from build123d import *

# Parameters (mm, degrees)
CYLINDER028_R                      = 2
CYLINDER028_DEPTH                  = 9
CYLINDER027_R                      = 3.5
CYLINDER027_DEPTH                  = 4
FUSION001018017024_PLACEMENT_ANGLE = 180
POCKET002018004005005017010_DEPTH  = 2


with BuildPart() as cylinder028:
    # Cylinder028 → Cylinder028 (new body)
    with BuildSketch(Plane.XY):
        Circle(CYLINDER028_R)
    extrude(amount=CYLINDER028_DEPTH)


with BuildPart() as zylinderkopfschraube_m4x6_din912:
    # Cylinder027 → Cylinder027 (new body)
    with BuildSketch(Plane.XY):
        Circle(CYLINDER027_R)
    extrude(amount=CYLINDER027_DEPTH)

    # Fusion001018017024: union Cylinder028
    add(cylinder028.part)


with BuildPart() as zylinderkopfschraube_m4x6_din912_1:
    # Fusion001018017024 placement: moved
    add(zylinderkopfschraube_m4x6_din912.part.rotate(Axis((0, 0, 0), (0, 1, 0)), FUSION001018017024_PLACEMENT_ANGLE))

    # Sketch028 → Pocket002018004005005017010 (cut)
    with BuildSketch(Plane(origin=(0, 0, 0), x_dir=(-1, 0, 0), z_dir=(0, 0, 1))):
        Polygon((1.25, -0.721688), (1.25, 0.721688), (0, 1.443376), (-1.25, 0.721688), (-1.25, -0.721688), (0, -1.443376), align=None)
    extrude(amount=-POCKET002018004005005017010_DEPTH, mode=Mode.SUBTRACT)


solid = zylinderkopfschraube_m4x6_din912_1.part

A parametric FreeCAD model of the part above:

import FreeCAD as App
import Part
import Sketcher
Q = App.Units.Quantity


def add_polygon(sketch, points):
    """Adds a closed chain of lines whose ends are joined by coincident constraints."""
    first, n = sketch.GeometryCount, len(points)
    for a, b in zip(points, points[1:] + points[:1]):
        sketch.addGeometry(Part.LineSegment(App.Vector(*a, 0), App.Vector(*b, 0)), False)
    for i in range(n):
        sketch.addConstraint(Sketcher.Constraint("Coincident", first + i, 2, first + (i + 1) % n, 1))

doc = App.newDocument("Part")
params = doc.addObject("Spreadsheet::Sheet", "Params")
for row, (alias, value) in enumerate([
    ("sketch1_diameter", "4 mm"),
    ("pad1_length", "9 mm"),
    ("sketch2_diameter", "7 mm"),
    ("pad2_length", "4 mm"),
    ("pocket1_length", "2 mm"),
], start=1):
    params.set(f"A{row}", alias)
    params.set(f"B{row}", "=" + value)
    params.setAlias(f"B{row}", alias)

body = doc.addObject("PartDesign::Body", "Body")

sketch1 = body.newObject("Sketcher::SketchObject", "Sketch")
sketch1.AttachmentSupport = (doc.getObject("XY_Plane"), [""])
sketch1.MapMode = "FlatFace"
sketch1.addGeometry(Part.Circle(App.Vector(0, 0, 0), App.Vector(0, 0, 1), 2), False)
sketch1.addConstraint([
    Sketcher.Constraint("Coincident", 0, 3, -1, 1),
    Sketcher.Constraint("Diameter", 0, 4.0),
])
sketch1.setExpression("Constraints[1]", "Params.sketch1_diameter")
pad1 = body.newObject("PartDesign::Pad", "Pad")
pad1.Profile = sketch1
pad1.setExpression("Length", "Params.pad1_length")
body2 = doc.addObject("PartDesign::Body", "Body001")

sketch2 = body2.newObject("Sketcher::SketchObject", "Sketch001")
sketch2.AttachmentSupport = (doc.getObject("XY_Plane001"), [""])
sketch2.MapMode = "FlatFace"
sketch2.addGeometry(Part.Circle(App.Vector(0, 0, 0), App.Vector(0, 0, 1), 3.5), False)
sketch2.addConstraint([
    Sketcher.Constraint("Coincident", 0, 3, -1, 1),
    Sketcher.Constraint("Diameter", 0, 7.0),
])
sketch2.setExpression("Constraints[1]", "Params.sketch2_diameter")
pad2 = body2.newObject("PartDesign::Pad", "Pad001")
pad2.Profile = sketch2
pad2.setExpression("Length", "Params.pad2_length")
doc.recompute()

boolean = body2.newObject("PartDesign::Boolean", "Boolean")
boolean.Type = "Fuse"
boolean.addObjects([body])
body3 = doc.addObject("PartDesign::Body", "Body002")
doc.recompute()

body2.Placement = App.Placement(App.Vector(0, 0, 0), App.Rotation(App.Vector(0, 1, 0), 180))
boolean2 = body3.newObject("PartDesign::Boolean", "Boolean001")
boolean2.Type = "Fuse"
boolean2.addObjects([body2])

sketch3 = body3.newObject("Sketcher::SketchObject", "Sketch002")
sketch3.AttachmentSupport = (doc.getObject("XY_Plane002"), [""])
sketch3.MapMode = "FlatFace"
add_polygon(sketch3, [(-1.2, 0.7), (-1.2, -0.7), (0, -1.4), (1.2, -0.7), (1.2, 0.7), (0, 1.4)])
sketch3.addConstraint([
    Sketcher.Constraint("Vertical", 0),
    Sketcher.Constraint("Vertical", 3),
    Sketcher.Constraint("Symmetric", 0, 2, 3, 2, -1, 1),
    Sketcher.Constraint("Symmetric", 1, 2, 4, 2, -1, 1),
    Sketcher.Constraint("PointOnObject", 1, 2, -2),
    Sketcher.Constraint("Parallel", 2, 5),
    Sketcher.Constraint("Horizontal", 0, 2, 2, 2),
    Sketcher.Constraint("Angle", 1, Q("-30.000006 deg")),
    Sketcher.Constraint("DistanceX", 0, 2, 2, 2, 2.5),
    Sketcher.Constraint("DistanceY", 0, 2, 0, 1, 1.443376),
])
pocket1 = body3.newObject("PartDesign::Pocket", "Pocket")
pocket1.Profile = sketch3
pocket1.setExpression("Length", "Params.pocket1_length")

doc.recompute()
